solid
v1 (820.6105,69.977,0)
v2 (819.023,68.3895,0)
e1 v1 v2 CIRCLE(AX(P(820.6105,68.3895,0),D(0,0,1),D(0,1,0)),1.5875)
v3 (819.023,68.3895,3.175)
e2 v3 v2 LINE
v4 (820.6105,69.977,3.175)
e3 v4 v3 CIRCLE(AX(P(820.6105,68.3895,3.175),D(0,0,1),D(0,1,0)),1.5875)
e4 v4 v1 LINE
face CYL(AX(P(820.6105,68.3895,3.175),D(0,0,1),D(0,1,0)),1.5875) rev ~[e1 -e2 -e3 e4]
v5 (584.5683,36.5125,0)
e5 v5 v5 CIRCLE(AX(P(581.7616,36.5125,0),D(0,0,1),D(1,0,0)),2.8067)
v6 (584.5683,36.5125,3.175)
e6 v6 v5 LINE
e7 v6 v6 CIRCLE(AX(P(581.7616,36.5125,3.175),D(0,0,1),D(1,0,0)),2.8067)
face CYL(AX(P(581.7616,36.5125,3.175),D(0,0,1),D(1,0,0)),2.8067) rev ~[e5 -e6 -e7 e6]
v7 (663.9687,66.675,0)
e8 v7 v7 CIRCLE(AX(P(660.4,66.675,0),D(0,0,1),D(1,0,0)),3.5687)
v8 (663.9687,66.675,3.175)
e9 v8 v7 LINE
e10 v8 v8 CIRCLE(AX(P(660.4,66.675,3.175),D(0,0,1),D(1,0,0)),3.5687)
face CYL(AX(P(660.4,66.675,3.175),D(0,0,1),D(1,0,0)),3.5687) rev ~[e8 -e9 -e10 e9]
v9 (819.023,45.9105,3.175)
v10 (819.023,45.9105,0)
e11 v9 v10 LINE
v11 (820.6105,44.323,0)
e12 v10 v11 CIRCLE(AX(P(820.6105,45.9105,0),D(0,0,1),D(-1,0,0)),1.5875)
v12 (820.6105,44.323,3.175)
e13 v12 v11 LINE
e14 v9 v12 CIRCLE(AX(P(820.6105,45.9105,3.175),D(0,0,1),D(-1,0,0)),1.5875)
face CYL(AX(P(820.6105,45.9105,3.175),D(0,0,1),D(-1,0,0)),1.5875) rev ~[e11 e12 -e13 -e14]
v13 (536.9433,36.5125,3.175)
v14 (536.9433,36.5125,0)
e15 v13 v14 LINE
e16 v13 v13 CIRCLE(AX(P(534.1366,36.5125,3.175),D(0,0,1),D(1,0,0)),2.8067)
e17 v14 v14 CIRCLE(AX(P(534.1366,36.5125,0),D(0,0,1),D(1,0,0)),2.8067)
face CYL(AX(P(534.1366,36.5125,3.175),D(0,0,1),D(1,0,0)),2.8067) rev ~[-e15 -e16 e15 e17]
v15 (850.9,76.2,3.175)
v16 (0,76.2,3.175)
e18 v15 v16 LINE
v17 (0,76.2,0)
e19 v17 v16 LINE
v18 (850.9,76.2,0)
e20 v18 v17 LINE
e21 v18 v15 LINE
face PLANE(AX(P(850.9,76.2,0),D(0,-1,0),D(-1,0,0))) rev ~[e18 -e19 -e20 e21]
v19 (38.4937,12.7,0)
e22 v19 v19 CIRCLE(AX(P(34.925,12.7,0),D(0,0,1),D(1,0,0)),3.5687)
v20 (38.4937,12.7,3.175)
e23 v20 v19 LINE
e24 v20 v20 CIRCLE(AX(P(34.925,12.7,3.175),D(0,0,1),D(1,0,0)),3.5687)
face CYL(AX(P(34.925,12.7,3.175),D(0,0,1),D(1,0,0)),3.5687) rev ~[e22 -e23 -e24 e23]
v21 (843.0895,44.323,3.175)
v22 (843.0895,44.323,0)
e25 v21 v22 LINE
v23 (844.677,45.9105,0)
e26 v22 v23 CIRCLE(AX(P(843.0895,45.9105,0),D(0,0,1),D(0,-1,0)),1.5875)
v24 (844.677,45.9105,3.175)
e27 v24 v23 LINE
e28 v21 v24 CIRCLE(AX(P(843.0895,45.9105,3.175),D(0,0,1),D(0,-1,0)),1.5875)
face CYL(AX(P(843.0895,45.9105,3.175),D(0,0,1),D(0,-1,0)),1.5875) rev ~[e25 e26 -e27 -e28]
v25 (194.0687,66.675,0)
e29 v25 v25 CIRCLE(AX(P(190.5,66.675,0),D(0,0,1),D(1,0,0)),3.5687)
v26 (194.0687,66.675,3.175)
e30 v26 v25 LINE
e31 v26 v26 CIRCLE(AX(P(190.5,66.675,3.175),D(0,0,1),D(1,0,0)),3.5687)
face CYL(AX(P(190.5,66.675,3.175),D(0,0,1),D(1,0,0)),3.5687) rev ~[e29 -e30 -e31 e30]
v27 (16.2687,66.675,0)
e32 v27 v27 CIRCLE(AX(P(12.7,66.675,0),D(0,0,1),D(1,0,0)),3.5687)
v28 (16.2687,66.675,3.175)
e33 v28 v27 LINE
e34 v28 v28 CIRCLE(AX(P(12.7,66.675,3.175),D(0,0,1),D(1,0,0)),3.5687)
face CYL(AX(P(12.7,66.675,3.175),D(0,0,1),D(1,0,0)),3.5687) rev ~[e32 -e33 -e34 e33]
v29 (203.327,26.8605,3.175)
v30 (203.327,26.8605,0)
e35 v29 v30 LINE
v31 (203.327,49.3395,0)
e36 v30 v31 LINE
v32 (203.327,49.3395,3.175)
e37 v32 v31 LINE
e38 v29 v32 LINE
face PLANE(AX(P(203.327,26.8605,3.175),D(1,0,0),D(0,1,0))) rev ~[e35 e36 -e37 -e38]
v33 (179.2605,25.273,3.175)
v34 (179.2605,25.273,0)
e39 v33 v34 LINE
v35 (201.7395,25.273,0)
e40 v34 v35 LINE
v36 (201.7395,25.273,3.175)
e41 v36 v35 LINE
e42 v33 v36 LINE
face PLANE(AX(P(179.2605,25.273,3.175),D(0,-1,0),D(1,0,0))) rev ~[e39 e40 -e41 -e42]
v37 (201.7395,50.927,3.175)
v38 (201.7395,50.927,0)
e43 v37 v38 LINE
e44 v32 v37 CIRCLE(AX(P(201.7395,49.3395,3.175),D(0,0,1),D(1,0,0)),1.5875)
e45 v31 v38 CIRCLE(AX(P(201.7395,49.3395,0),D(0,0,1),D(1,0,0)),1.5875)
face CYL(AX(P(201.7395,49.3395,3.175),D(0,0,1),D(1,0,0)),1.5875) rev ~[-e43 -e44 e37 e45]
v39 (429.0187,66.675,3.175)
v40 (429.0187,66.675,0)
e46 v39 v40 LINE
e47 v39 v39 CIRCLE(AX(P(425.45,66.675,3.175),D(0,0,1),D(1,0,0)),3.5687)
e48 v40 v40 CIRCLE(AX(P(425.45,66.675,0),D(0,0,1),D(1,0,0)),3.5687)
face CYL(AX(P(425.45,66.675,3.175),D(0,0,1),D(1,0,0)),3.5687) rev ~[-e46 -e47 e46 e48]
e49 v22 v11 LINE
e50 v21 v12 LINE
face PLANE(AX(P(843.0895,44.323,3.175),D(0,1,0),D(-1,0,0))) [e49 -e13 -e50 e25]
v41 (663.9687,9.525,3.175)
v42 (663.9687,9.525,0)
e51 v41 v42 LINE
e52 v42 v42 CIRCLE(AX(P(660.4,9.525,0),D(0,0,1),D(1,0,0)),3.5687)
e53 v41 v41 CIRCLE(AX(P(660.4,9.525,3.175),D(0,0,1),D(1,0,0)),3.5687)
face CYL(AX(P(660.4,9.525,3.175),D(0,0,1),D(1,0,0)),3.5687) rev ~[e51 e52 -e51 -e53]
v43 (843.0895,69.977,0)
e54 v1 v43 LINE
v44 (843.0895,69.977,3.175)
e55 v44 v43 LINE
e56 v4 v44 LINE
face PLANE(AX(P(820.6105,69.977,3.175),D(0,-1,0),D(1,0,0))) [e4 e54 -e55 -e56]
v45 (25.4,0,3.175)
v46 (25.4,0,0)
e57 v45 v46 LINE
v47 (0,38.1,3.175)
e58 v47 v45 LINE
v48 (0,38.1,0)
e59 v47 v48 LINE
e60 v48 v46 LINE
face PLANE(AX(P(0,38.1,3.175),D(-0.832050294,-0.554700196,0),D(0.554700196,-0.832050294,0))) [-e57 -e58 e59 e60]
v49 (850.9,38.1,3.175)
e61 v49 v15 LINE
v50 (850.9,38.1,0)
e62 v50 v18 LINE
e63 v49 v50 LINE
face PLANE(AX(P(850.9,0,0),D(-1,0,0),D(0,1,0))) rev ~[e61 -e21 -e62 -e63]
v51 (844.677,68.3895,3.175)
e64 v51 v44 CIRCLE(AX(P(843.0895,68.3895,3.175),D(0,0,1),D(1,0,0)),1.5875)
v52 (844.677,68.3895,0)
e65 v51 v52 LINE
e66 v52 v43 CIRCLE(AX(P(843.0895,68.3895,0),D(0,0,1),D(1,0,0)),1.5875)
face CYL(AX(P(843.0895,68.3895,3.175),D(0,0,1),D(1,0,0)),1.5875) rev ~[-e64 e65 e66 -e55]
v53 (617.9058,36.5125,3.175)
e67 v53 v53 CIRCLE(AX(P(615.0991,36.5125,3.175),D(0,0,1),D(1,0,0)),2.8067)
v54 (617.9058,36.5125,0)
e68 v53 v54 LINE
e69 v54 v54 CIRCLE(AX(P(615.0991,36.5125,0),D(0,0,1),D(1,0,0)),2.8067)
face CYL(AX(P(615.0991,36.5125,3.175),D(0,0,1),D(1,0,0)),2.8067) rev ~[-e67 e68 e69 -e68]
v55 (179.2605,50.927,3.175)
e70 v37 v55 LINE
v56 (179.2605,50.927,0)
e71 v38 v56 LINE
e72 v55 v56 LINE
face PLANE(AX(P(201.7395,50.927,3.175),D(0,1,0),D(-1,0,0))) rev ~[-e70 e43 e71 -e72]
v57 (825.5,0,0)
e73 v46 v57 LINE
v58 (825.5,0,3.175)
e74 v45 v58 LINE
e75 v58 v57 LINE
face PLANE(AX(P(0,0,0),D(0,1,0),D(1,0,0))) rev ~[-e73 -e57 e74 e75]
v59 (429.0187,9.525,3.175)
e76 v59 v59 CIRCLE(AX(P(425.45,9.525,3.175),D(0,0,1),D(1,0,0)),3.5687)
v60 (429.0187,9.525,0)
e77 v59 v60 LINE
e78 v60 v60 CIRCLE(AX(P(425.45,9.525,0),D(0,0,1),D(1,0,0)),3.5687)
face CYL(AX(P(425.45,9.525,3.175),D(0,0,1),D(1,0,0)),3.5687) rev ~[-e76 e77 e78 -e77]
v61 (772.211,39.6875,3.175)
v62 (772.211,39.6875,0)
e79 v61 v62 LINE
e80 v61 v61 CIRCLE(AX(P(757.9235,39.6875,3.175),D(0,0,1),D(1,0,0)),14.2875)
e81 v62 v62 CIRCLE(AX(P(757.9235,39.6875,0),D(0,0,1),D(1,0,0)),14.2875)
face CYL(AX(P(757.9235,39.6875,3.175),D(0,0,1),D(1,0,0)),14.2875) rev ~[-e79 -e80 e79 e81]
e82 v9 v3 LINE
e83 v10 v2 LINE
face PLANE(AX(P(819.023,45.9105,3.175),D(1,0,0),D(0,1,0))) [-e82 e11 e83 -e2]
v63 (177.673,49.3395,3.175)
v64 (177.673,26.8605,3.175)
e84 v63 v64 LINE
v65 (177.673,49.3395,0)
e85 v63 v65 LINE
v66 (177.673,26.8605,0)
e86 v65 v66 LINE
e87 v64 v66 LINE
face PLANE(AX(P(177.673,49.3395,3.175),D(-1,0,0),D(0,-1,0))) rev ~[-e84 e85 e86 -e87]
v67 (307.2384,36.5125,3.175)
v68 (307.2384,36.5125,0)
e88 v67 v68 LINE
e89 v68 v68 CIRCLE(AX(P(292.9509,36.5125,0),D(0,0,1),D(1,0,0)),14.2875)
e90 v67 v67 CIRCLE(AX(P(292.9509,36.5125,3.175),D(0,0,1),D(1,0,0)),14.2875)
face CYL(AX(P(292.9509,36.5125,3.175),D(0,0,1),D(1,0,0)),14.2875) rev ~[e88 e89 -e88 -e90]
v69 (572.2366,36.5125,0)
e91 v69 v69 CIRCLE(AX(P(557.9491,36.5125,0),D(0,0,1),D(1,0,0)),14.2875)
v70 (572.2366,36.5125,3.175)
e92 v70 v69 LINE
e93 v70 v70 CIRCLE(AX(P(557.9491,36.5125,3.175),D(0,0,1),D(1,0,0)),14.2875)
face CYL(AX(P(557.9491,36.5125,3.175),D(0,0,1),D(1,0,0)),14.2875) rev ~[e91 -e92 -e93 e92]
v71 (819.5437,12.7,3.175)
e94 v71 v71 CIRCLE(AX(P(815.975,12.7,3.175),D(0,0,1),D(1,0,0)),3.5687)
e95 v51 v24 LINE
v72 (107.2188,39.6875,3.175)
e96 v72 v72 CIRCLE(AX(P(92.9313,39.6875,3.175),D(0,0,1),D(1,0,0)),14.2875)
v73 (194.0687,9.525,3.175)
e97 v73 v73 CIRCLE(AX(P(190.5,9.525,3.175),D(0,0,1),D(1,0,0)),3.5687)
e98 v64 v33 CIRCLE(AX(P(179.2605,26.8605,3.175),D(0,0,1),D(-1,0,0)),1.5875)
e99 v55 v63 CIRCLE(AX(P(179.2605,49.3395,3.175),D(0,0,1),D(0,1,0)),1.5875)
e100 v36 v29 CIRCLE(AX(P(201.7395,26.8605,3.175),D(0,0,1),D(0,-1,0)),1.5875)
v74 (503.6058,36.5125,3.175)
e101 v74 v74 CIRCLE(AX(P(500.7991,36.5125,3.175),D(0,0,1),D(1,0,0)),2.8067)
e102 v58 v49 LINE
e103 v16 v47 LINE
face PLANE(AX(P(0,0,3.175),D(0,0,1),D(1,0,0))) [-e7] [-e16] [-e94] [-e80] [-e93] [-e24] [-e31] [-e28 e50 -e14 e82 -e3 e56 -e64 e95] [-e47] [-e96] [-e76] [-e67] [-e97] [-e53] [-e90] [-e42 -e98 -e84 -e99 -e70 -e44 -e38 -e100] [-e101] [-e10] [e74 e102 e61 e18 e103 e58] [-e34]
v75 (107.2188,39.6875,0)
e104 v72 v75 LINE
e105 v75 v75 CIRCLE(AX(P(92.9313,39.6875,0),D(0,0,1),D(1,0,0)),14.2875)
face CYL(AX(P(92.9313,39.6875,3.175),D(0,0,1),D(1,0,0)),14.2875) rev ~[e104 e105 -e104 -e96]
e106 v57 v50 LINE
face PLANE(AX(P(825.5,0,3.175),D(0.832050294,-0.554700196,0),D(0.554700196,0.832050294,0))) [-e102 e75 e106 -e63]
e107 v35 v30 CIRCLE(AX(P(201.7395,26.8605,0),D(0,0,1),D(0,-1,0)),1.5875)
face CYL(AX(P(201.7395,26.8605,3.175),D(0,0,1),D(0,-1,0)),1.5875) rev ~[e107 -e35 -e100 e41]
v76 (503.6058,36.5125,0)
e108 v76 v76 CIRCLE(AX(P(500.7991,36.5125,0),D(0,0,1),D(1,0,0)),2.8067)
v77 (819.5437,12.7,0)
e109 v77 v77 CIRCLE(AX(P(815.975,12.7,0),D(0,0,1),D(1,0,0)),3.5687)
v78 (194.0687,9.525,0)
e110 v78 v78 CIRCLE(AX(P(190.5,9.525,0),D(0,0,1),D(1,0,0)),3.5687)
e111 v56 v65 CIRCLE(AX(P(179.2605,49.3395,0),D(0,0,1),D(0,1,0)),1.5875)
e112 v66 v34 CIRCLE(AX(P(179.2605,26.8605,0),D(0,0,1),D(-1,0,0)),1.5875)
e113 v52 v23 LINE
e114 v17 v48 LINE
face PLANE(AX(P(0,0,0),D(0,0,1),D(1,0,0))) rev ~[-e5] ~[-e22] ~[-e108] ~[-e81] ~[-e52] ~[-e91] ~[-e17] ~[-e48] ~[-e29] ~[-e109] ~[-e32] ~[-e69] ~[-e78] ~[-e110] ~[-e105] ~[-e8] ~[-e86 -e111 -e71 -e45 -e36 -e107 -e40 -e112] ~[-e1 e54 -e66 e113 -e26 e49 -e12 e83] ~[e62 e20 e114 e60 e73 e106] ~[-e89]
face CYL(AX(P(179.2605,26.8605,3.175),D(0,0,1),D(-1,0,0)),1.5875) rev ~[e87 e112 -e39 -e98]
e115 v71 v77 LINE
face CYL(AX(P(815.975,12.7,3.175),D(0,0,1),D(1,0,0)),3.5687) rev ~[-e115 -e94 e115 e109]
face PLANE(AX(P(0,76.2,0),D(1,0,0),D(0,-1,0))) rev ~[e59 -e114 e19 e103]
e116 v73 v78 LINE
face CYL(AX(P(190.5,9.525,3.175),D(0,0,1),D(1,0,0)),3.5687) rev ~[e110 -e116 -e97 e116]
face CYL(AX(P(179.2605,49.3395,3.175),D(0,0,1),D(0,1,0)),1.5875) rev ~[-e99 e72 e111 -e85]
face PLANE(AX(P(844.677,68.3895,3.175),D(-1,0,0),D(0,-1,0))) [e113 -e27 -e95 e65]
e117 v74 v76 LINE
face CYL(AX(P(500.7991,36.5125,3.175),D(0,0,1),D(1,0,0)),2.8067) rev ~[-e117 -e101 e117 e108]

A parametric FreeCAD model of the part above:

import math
import FreeCAD as App
import Part
import Sketcher

V = App.Vector
Q = App.Units.Quantity


def add_polygon(sketch, points):
    """Adds a closed chain of lines whose ends are joined by coincident constraints."""
    first, n = sketch.GeometryCount, len(points)
    for a, b in zip(points, points[1:] + points[:1]):
        sketch.addGeometry(Part.LineSegment(App.Vector(*a, 0), App.Vector(*b, 0)), False)
    for i in range(n):
        sketch.addConstraint(Sketcher.Constraint("Coincident", first + i, 2, first + (i + 1) % n, 1))

doc = App.newDocument("Part")
body = doc.addObject("PartDesign::Body", "Body")

# Sketch on XY plane
sketch1 = body.newObject("Sketcher::SketchObject", "Sketch")
sketch1.AttachmentSupport = (doc.getObject("XY_Plane"), [""])
sketch1.MapMode = "FlatFace"
add_polygon(sketch1, [(0, 76), (0, 0), (851, 0), (851, 76)])  # lines 0-3
sketch1.addConstraint([
    Sketcher.Constraint("Vertical", 0),
    Sketcher.Constraint("Horizontal", 1),
    Sketcher.Constraint("Vertical", 2),
    Sketcher.Constraint("Horizontal", 3),
    Sketcher.Constraint("Coincident", 0, 2, -1, 1),
    Sketcher.Constraint("DistanceY", 0, 2, 0, 1, Q("3 in")),
    Sketcher.Constraint("DistanceX", 1, 1, 1, 2, Q("33.5 in")),
])
pad1 = body.newObject("PartDesign::Pad", "Pad")
pad1.Profile = sketch1
pad1.Length = Q("0.125 in")

# Sketch on XY plane
sketch2 = body.newObject("Sketcher::SketchObject", "Sketch001")
sketch2.AttachmentSupport = (doc.getObject("XY_Plane"), [""])
sketch2.MapMode = "FlatFace"
sketch2.AttachmentOffset = App.Placement(V(0, 0, 0.125 * 25.4), App.Rotation())
add_polygon(sketch2, [(0, 38.1), (0, 0), (25.4, 0)])  # lines 0-2
add_polygon(sketch2, [(850.9, 38.1), (825.5, 0), (850.9, 0)])  # lines 3-5
sketch2.addGeometry(Part.Circle(V(293, 36.5, 0), V(0, 0, 1), 14.3), False)  # 6
sketch2.addGeometry(Part.Circle(V(557.9, 36.5, 0), V(0, 0, 1), 14.3), False)  # 7
sketch2.addGeometry(Part.Circle(V(92.9, 39.7, 0), V(0, 0, 1), 14.3), False)  # 8
sketch2.addGeometry(Part.Circle(V(757.9, 39.7, 0), V(0, 0, 1), 14.3), False)  # 9
sketch2.addGeometry(Part.Circle(V(34.9, 12.7, 0), V(0, 0, 1), 3.6), False)  # 10
sketch2.addGeometry(Part.Circle(V(12.7, 66.7, 0), V(0, 0, 1), 3.6), False)  # 11
sketch2.addGeometry(Part.Circle(V(190.5, 38.1, 0), V(0, 0, 1), 3.6), False)  # 12
sketch2.addGeometry(Part.Circle(V(816, 12.7, 0), V(0, 0, 1), 3.6), False)  # 13
sketch2.addGeometry(Part.Circle(V(831.9, 57.1, 0), V(0, 0, 1), 3.6), False)  # 14
sketch2.addGeometry(Part.Circle(V(425.4, 66.7, 0), V(0, 0, 1), 3.6), False)  # 15
sketch2.addGeometry(Part.Circle(V(425.4, 9.5, 0), V(0, 0, 1), 3.6), False)  # 16
sketch2.addGeometry(Part.Circle(V(190.5, 9.5, 0), V(0, 0, 1), 3.6), False)  # 17
sketch2.addGeometry(Part.Circle(V(190.5, 66.7, 0), V(0, 0, 1), 3.6), False)  # 18
sketch2.addGeometry(Part.Circle(V(660.4, 66.7, 0), V(0, 0, 1), 3.6), False)  # 19
sketch2.addGeometry(Part.Circle(V(660.4, 9.5, 0), V(0, 0, 1), 3.6), False)  # 20
sketch2.addConstraint([
    Sketcher.Constraint("Vertical", 0),
    Sketcher.Constraint("Horizontal", 1),
    Sketcher.Constraint("Horizontal", 4),
    Sketcher.Constraint("Vertical", 5),
    Sketcher.Constraint("Coincident", 0, 2, -1, 1),
    Sketcher.Constraint("Equal", 6, 7),
    Sketcher.Constraint("Equal", 7, 8),
    Sketcher.Constraint("Equal", 8, 9),
    Sketcher.Constraint("Equal", 10, 11),
    Sketcher.Constraint("Equal", 11, 12),
    Sketcher.Constraint("Equal", 12, 13),
    Sketcher.Constraint("Equal", 13, 14),
    Sketcher.Constraint("Equal", 14, 15),
    Sketcher.Constraint("Equal", 15, 16),
    Sketcher.Constraint("Equal", 16, 17),
    Sketcher.Constraint("Equal", 17, 18),
    Sketcher.Constraint("Equal", 18, 19),
    Sketcher.Constraint("Equal", 19, 20),
    Sketcher.Constraint("PointOnObject", 3, 2, -1),
    Sketcher.Constraint("Horizontal", 6, 3, 7, 3),
    Sketcher.Constraint("Horizontal", 8, 3, 9, 3),
    Sketcher.Constraint("Horizontal", 10, 3, 13, 3),
    Sketcher.Constraint("Horizontal", 11, 3, 15, 3),
    Sketcher.Constraint("Horizontal", 16, 3, 17, 3),
    Sketcher.Constraint("Horizontal", 15, 3, 18, 3),
    Sketcher.Constraint("Horizontal", 18, 3, 19, 3),
    Sketcher.Constraint("Horizontal", 17, 3, 20, 3),
    Sketcher.Constraint("Horizontal", 12, 3, 2, 2),
    Sketcher.Constraint("Horizontal", 2, 2, 5, 2),
    Sketcher.Constraint("Vertical", 15, 3, 16, 3),
    Sketcher.Constraint("Vertical", 12, 3, 17, 3),
    Sketcher.Constraint("Vertical", 17, 3, 18, 3),
    Sketcher.Constraint("Vertical", 19, 3, 20, 3),
    Sketcher.Constraint("Equal", 1, 4),
    Sketcher.Constraint("DistanceX", 1, 1, 1, 2, Q("1 in")),
    Sketcher.Constraint("Diameter", 6, Q("1.125 in")),
    Sketcher.Constraint("Diameter", 10, Q("0.281 in")),
    Sketcher.Constraint("DistanceY", 0, 2, 0, 1, Q("1.5 in")),
    Sketcher.Constraint("DistanceY", 10, 3, 12, 3, Q("1 in")),
    Sketcher.Constraint("DistanceX", -1, 1, 11, 3, Q("0.5 in")),
    Sketcher.Constraint("DistanceX", -1, 1, 12, 3, Q("7.5 in")),
    Sketcher.Constraint("DistanceX", 20, 3, 4, 2, Q("7.5 in")),
    Sketcher.Constraint("DistanceX", -1, 1, 15, 3, Q("16.75 in")),
    Sketcher.Constraint("DistanceY", -1, 1, 16, 3, Q("0.375 in")),
    Sketcher.Constraint("DistanceX", -1, 1, 19, 3, Q("26 in")),
    Sketcher.Constraint("DistanceY", 12, 3, 11, 3, Q("1.125 in")),
    Sketcher.Constraint("DistanceY", 14, 3, 19, 3, Q("0.375 in")),
    Sketcher.Constraint("DistanceX", 1, 2, 10, 3, Q("0.375 in")),
    Sketcher.Constraint("DistanceX", 13, 3, 3, 2, Q("0.375 in")),
    Sketcher.Constraint("DistanceX", -1, 1, 14, 3, Q("32.75 in")),
    Sketcher.Constraint("DistanceY", -1, 1, 6, 3, Q("1.4375 in")),
    Sketcher.Constraint("DistanceY", -1, 1, 8, 3, Q("1.5625 in")),
    Sketcher.Constraint("DistanceX", 6, 3, 7, 3, Q("10.433 in")),
    Sketcher.Constraint("DistanceX", 7, 3, 9, 3, Q("7.873 in")),
    Sketcher.Constraint("DistanceX", -1, 1, 6, 3, Q("11.5335 in")),
    Sketcher.Constraint("DistanceX", 8, 3, 9, 3, Q("26.1808 in")),
])
pocket1 = body.newObject("PartDesign::Pocket", "Pocket")
pocket1.Profile = sketch2
pocket1.Length = Q("0.125 in")

# Sketch on XY plane
sketch3 = body.newObject("Sketcher::SketchObject", "Sketch002")
sketch3.AttachmentSupport = (doc.getObject("XY_Plane"), [""])
sketch3.MapMode = "FlatFace"
sketch3.AttachmentOffset = App.Placement(V(0, 0, 0.125 * 25.4), App.Rotation())
sketch3.addGeometry([
    Part.ArcOfCircle(Part.Circle(V(179.3, 26.9, 0), V(0, 0, 1), 1.6), math.radians(180), math.radians(270)),  # 0
    Part.LineSegment(V(179.3, 25.3, 0), V(201.7, 25.3, 0)),  # 1
    Part.ArcOfCircle(Part.Circle(V(201.7, 26.9, 0), V(0, 0, 1), 1.6), math.radians(-90), math.radians(0)),  # 2
    Part.LineSegment(V(203.3, 26.9, 0), V(203.3, 49.3, 0)),  # 3
    Part.ArcOfCircle(Part.Circle(V(201.7, 49.3, 0), V(0, 0, 1), 1.6), math.radians(0), math.radians(90)),  # 4
    Part.LineSegment(V(201.7, 50.9, 0), V(179.3, 50.9, 0)),  # 5
    Part.ArcOfCircle(Part.Circle(V(179.3, 49.3, 0), V(0, 0, 1), 1.6), math.radians(90), math.radians(180)),  # 6
    Part.LineSegment(V(177.7, 49.3, 0), V(177.7, 26.9, 0)),  # 7
    Part.Circle(V(190.5, 38.1, 0), V(0, 0, 1), 3.6),  # 8
    Part.LineSegment(V(820.6, 44.3, 0), V(843.1, 44.3, 0)),  # 9
    Part.ArcOfCircle(Part.Circle(V(843.1, 45.9, 0), V(0, 0, 1), 1.6), math.radians(-90), math.radians(0)),  # 10
    Part.LineSegment(V(844.7, 45.9, 0), V(844.7, 68.4, 0)),  # 11
    Part.ArcOfCircle(Part.Circle(V(843.1, 68.4, 0), V(0, 0, 1), 1.6), math.radians(0), math.radians(90)),  # 12
    Part.LineSegment(V(843.1, 70, 0), V(820.6, 70, 0)),  # 13
    Part.ArcOfCircle(Part.Circle(V(820.6, 68.4, 0), V(0, 0, 1), 1.6), math.radians(90), math.radians(180)),  # 14
    Part.LineSegment(V(819, 68.4, 0), V(819, 45.9, 0)),  # 15
    Part.ArcOfCircle(Part.Circle(V(820.6, 45.9, 0), V(0, 0, 1), 1.6), math.radians(180), math.radians(270)),  # 16
    Part.Circle(V(831.9, 57.1, 0), V(0, 0, 1), 3.6),  # 17
    Part.Circle(V(581.8, 36.5, 0), V(0, 0, 1), 2.8),  # 18
    Part.Circle(V(534.1, 36.5, 0), V(0, 0, 1), 2.8),  # 19
    Part.Circle(V(500.8, 36.5, 0), V(0, 0, 1), 2.8),  # 20
    Part.Circle(V(615.1, 36.5, 0), V(0, 0, 1), 2.8),  # 21
], False)
sketch3.addConstraint([
    Sketcher.Constraint("Tangent", 0, 2, 1, 1),
    Sketcher.Constraint("Tangent", 1, 2, 2, 1),
    Sketcher.Constraint("Tangent", 2, 2, 3, 1),
    Sketcher.Constraint("Tangent", 3, 2, 4, 1),
    Sketcher.Constraint("Tangent", 4, 2, 5, 1),
    Sketcher.Constraint("Tangent", 5, 2, 6, 1),
    Sketcher.Constraint("Tangent", 6, 2, 7, 1),
    Sketcher.Constraint("Tangent", 7, 2, 0, 1),
    Sketcher.Constraint("Tangent", 9, 2, 10, 1),
    Sketcher.Constraint("Tangent", 10, 2, 11, 1),
    Sketcher.Constraint("Tangent", 11, 2, 12, 1),
    Sketcher.Constraint("Tangent", 12, 2, 13, 1),
    Sketcher.Constraint("Tangent", 13, 2, 14, 1),
    Sketcher.Constraint("Tangent", 14, 2, 15, 1),
    Sketcher.Constraint("Tangent", 15, 2, 16, 1),
    Sketcher.Constraint("Tangent", 16, 2, 9, 1),
    Sketcher.Constraint("Horizontal", 1),
    Sketcher.Constraint("Vertical", 3),
    Sketcher.Constraint("Horizontal", 5),
    Sketcher.Constraint("Vertical", 7),
    Sketcher.Constraint("Horizontal", 9),
    Sketcher.Constraint("Vertical", 11),
    Sketcher.Constraint("Horizontal", 13),
    Sketcher.Constraint("Vertical", 15),
    Sketcher.Constraint("Equal", 0, 2),
    Sketcher.Constraint("Equal", 2, 4),
    Sketcher.Constraint("Equal", 4, 6),
    Sketcher.Constraint("Equal", 6, 10),
    Sketcher.Constraint("Equal", 10, 12),
    Sketcher.Constraint("Equal", 12, 14),
    Sketcher.Constraint("Equal", 14, 16),
    Sketcher.Constraint("Equal", 8, 17),
    Sketcher.Constraint("Equal", 18, 19),
    Sketcher.Constraint("Equal", 19, 20),
    Sketcher.Constraint("Equal", 20, 21),
    Sketcher.Constraint("Horizontal", 18, 3, 19, 3),
    Sketcher.Constraint("Horizontal", 19, 3, 20, 3),
    Sketcher.Constraint("Horizontal", 20, 3, 21, 3),
    Sketcher.Constraint("Equal", 5, 9),
    Sketcher.Constraint("Equal", 13, 3),
    Sketcher.Constraint("Equal", 7, 11),
    Sketcher.Constraint("Diameter", 18, Q("0.221 in")),
    Sketcher.Constraint("Radius", 0, Q("0.0625 in")),
    Sketcher.Constraint("Diameter", 8, Q("0.281 in")),
    Sketcher.Constraint("DistanceY", 20, 3, 8, 3, Q("0.0625 in")),
    Sketcher.Constraint("DistanceX", -1, 1, 8, 3, Q("7.5 in")),
    Sketcher.Constraint("DistanceY", -1, 1, 8, 3, Q("1.5 in")),
    Sketcher.Constraint("DistanceX", 20, 3, 21, 3, Q("4.5 in")),
    Sketcher.Constraint("DistanceX", 1, 1, 1, 2, Q("0.885 in")),
    Sketcher.Constraint("DistanceX", -1, 1, 17, 3, Q("32.75 in")),
    Sketcher.Constraint("DistanceY", -1, 1, 17, 3, Q("2.25 in")),
    Sketcher.Constraint("DistanceX", 4, 3, 10, 3, Q("25.25 in")),
    Sketcher.Constraint("DistanceY", 2, 3, 10, 3, Q("0.75 in")),
    Sketcher.Constraint("DistanceY", 18, 3, 16, 3, Q("0.37 in")),
    Sketcher.Constraint("DistanceX", -1, 1, 18, 3, Q("22.904 in")),
    Sketcher.Constraint("DistanceX", -1, 1, 19, 3, Q("21.029 in")),
    Sketcher.Constraint("DistanceX", -1, 1, 2, 2, Q("8.005 in")),
    Sketcher.Constraint("DistanceX", 20, 3, 19, 3, Q("1.3125 in")),
])
pocket2 = body.newObject("PartDesign::Pocket", "Pocket001")
pocket2.Profile = sketch3
pocket2.Length = Q("1 in")

doc.recompute()
